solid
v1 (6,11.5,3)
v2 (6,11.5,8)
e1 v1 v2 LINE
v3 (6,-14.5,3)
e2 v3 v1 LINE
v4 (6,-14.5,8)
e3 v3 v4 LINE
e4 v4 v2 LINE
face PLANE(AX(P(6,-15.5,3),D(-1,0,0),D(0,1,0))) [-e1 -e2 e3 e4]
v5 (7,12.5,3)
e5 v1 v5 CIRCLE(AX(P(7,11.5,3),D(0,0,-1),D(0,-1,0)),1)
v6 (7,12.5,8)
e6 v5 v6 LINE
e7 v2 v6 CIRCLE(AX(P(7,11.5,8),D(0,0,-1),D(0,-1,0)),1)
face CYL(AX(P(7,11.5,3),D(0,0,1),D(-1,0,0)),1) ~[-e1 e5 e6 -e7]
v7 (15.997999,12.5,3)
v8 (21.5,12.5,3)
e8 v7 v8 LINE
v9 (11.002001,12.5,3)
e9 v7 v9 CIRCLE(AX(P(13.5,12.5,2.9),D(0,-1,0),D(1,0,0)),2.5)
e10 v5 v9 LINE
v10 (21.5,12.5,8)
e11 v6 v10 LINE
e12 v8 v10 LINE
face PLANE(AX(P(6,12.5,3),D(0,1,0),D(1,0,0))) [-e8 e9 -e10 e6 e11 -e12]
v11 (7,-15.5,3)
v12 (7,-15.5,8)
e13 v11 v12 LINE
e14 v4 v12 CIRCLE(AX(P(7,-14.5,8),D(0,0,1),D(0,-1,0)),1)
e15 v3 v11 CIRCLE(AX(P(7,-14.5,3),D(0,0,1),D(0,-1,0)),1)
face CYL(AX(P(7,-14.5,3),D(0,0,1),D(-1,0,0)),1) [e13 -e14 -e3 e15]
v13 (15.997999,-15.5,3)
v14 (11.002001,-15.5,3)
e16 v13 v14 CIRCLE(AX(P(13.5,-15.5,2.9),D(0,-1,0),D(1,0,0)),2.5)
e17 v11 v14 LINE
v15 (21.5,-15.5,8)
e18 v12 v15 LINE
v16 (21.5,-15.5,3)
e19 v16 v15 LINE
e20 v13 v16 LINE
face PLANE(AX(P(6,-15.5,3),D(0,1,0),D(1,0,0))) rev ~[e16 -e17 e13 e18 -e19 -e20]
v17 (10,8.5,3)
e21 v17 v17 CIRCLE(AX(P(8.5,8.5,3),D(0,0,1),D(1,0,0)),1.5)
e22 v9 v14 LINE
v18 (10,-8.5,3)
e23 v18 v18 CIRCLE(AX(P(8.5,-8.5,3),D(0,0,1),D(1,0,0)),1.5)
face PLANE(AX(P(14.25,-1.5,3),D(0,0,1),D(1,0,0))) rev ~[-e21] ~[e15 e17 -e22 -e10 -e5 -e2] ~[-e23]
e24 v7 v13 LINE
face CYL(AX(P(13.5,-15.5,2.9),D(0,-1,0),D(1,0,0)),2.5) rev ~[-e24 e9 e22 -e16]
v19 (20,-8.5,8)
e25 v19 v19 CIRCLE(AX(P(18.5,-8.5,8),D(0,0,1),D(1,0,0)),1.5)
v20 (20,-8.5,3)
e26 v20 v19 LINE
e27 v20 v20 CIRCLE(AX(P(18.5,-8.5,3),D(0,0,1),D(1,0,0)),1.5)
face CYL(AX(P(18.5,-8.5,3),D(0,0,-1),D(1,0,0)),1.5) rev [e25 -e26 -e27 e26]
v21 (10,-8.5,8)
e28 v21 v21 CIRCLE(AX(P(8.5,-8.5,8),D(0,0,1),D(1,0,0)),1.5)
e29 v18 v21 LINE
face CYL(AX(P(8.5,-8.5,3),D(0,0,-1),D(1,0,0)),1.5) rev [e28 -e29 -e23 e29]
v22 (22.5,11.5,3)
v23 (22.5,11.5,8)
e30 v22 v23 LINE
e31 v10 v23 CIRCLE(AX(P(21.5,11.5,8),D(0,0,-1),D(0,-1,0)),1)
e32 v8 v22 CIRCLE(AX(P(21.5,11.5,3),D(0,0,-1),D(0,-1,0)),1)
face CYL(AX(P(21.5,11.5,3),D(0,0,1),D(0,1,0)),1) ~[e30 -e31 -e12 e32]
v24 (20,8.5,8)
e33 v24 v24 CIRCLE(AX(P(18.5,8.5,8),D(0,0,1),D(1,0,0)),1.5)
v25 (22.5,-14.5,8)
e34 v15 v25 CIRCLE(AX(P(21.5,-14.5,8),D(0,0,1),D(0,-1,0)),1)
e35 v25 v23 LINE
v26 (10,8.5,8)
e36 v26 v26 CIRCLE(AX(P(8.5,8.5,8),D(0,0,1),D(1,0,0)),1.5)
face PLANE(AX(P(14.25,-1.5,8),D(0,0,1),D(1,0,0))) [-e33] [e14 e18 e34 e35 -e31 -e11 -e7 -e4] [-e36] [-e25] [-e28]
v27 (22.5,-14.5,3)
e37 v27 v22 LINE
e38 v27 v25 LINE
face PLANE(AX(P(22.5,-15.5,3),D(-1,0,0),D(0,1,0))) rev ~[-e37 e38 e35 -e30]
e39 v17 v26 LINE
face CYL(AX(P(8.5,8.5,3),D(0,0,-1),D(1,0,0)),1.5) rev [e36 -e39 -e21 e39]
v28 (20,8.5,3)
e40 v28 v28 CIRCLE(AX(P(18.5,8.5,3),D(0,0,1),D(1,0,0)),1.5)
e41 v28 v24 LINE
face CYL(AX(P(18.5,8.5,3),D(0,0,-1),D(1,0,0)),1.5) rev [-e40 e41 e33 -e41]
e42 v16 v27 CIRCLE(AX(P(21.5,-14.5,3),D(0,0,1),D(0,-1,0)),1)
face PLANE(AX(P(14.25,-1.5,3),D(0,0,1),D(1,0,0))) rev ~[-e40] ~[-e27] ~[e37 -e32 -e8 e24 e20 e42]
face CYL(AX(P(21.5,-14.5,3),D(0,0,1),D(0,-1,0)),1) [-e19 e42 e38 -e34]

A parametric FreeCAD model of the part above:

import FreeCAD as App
import Part
import Sketcher


def edges_at(feature, points):
    """Names of the edges that pass closest to the given points."""
    edges = feature.Shape.Edges
    near = lambda p: min(range(len(edges)), key=lambda i: edges[i].distToShape(Part.Vertex(*p))[0])
    return sorted({f"Edge{near(p) + 1}" for p in points})

doc = App.newDocument("Part")
body = doc.addObject("PartDesign::Body", "Body")

sketch1 = body.newObject("Sketcher::SketchObject", "Sketch")
sketch1.AttachmentSupport = (doc.getObject("XY_Plane"), [""])
sketch1.MapMode = "FlatFace"
sketch1.AttachmentOffset = App.Placement(App.Vector(0, 0, 3), App.Rotation())
sketch1.addGeometry([
    Part.LineSegment(App.Vector(6, 12.5, 0), App.Vector(6, -15.5, 0)),
    Part.LineSegment(App.Vector(6, -15.5, 0), App.Vector(22.5, -15.5, 0)),
    Part.LineSegment(App.Vector(22.5, -15.5, 0), App.Vector(22.5, 12.5, 0)),
    Part.LineSegment(App.Vector(22.5, 12.5, 0), App.Vector(6, 12.5, 0)),
    Part.Circle(App.Vector(8.5, -8.5, 0), App.Vector(0, 0, 1), 1.5),
    Part.Circle(App.Vector(18.5, -8.5, 0), App.Vector(0, 0, 1), 1.5),
    Part.Circle(App.Vector(8.5, 8.5, 0), App.Vector(0, 0, 1), 1.5),
    Part.Circle(App.Vector(18.5, 8.5, 0), App.Vector(0, 0, 1), 1.5),
], False)
sketch1.addConstraint([
    Sketcher.Constraint("Coincident", 0, 2, 1, 1),
    Sketcher.Constraint("Coincident", 1, 2, 2, 1),
    Sketcher.Constraint("Coincident", 2, 2, 3, 1),
    Sketcher.Constraint("Coincident", 3, 2, 0, 1),
    Sketcher.Constraint("Vertical", 0),
    Sketcher.Constraint("Horizontal", 1),
    Sketcher.Constraint("Vertical", 2),
    Sketcher.Constraint("Horizontal", 3),
    Sketcher.Constraint("Equal", 4, 5),
    Sketcher.Constraint("Equal", 5, 6),
    Sketcher.Constraint("Equal", 6, 7),
    Sketcher.Constraint("Symmetric", 4, 3, 6, 3, -1),
    Sketcher.Constraint("Symmetric", 5, 3, 7, 3, -1),
    Sketcher.Constraint("Horizontal", 4, 3, 5, 3),
    Sketcher.Constraint("Diameter", 4, 3.0),
    Sketcher.Constraint("DistanceY", 0, 2, 0, 1, 28.0),
    Sketcher.Constraint("DistanceX", 1, 1, 1, 2, 16.5),
    Sketcher.Constraint("DistanceX", -1, 1, 0, 2, 6.0),
    Sketcher.Constraint("DistanceX", 4, 3, 5, 3, 10.0),
    Sketcher.Constraint("DistanceY", 4, 3, 6, 3, 17.0),
    Sketcher.Constraint("DistanceY", 0, 2, 4, 3, 7.0),
    Sketcher.Constraint("DistanceX", 5, 3, 1, 2, 4.0),
])
pad1 = body.newObject("PartDesign::Pad", "Pad")
pad1.Profile = sketch1
pad1.Length = 5

sketch2 = body.newObject("Sketcher::SketchObject", "Sketch001")
sketch2.AttachmentSupport = (doc.getObject("XZ_Plane"), [""])
sketch2.MapMode = "FlatFace"
sketch2.AttachmentOffset = App.Placement(App.Vector(0, 0, 15.5), App.Rotation())
sketch2.addGeometry(Part.Circle(App.Vector(13.5, 2.9, 0), App.Vector(0, 0, 1), 2.5), False)
sketch2.addConstraint([
    Sketcher.Constraint("Diameter", 0, 5.0),
    Sketcher.Constraint("DistanceX", -1, 1, 0, 3, 13.5),
    Sketcher.Constraint("DistanceY", -1, 1, 0, 3, 2.9),
])
pocket1 = body.newObject("PartDesign::Pocket", "Pocket")
pocket1.Profile = sketch2
pocket1.Type = "ThroughAll"
doc.recompute()

fillet = body.newObject("PartDesign::Fillet", "Fillet")
fillet.Base = (pocket1, edges_at(pocket1, [
    (6, -15.5, 5.5),
    (22.5, -15.5, 5.5),
    (22.5, 12.5, 5.5),
    (6, 12.5, 5.5),
]))
fillet.Radius = 1

doc.recompute()
